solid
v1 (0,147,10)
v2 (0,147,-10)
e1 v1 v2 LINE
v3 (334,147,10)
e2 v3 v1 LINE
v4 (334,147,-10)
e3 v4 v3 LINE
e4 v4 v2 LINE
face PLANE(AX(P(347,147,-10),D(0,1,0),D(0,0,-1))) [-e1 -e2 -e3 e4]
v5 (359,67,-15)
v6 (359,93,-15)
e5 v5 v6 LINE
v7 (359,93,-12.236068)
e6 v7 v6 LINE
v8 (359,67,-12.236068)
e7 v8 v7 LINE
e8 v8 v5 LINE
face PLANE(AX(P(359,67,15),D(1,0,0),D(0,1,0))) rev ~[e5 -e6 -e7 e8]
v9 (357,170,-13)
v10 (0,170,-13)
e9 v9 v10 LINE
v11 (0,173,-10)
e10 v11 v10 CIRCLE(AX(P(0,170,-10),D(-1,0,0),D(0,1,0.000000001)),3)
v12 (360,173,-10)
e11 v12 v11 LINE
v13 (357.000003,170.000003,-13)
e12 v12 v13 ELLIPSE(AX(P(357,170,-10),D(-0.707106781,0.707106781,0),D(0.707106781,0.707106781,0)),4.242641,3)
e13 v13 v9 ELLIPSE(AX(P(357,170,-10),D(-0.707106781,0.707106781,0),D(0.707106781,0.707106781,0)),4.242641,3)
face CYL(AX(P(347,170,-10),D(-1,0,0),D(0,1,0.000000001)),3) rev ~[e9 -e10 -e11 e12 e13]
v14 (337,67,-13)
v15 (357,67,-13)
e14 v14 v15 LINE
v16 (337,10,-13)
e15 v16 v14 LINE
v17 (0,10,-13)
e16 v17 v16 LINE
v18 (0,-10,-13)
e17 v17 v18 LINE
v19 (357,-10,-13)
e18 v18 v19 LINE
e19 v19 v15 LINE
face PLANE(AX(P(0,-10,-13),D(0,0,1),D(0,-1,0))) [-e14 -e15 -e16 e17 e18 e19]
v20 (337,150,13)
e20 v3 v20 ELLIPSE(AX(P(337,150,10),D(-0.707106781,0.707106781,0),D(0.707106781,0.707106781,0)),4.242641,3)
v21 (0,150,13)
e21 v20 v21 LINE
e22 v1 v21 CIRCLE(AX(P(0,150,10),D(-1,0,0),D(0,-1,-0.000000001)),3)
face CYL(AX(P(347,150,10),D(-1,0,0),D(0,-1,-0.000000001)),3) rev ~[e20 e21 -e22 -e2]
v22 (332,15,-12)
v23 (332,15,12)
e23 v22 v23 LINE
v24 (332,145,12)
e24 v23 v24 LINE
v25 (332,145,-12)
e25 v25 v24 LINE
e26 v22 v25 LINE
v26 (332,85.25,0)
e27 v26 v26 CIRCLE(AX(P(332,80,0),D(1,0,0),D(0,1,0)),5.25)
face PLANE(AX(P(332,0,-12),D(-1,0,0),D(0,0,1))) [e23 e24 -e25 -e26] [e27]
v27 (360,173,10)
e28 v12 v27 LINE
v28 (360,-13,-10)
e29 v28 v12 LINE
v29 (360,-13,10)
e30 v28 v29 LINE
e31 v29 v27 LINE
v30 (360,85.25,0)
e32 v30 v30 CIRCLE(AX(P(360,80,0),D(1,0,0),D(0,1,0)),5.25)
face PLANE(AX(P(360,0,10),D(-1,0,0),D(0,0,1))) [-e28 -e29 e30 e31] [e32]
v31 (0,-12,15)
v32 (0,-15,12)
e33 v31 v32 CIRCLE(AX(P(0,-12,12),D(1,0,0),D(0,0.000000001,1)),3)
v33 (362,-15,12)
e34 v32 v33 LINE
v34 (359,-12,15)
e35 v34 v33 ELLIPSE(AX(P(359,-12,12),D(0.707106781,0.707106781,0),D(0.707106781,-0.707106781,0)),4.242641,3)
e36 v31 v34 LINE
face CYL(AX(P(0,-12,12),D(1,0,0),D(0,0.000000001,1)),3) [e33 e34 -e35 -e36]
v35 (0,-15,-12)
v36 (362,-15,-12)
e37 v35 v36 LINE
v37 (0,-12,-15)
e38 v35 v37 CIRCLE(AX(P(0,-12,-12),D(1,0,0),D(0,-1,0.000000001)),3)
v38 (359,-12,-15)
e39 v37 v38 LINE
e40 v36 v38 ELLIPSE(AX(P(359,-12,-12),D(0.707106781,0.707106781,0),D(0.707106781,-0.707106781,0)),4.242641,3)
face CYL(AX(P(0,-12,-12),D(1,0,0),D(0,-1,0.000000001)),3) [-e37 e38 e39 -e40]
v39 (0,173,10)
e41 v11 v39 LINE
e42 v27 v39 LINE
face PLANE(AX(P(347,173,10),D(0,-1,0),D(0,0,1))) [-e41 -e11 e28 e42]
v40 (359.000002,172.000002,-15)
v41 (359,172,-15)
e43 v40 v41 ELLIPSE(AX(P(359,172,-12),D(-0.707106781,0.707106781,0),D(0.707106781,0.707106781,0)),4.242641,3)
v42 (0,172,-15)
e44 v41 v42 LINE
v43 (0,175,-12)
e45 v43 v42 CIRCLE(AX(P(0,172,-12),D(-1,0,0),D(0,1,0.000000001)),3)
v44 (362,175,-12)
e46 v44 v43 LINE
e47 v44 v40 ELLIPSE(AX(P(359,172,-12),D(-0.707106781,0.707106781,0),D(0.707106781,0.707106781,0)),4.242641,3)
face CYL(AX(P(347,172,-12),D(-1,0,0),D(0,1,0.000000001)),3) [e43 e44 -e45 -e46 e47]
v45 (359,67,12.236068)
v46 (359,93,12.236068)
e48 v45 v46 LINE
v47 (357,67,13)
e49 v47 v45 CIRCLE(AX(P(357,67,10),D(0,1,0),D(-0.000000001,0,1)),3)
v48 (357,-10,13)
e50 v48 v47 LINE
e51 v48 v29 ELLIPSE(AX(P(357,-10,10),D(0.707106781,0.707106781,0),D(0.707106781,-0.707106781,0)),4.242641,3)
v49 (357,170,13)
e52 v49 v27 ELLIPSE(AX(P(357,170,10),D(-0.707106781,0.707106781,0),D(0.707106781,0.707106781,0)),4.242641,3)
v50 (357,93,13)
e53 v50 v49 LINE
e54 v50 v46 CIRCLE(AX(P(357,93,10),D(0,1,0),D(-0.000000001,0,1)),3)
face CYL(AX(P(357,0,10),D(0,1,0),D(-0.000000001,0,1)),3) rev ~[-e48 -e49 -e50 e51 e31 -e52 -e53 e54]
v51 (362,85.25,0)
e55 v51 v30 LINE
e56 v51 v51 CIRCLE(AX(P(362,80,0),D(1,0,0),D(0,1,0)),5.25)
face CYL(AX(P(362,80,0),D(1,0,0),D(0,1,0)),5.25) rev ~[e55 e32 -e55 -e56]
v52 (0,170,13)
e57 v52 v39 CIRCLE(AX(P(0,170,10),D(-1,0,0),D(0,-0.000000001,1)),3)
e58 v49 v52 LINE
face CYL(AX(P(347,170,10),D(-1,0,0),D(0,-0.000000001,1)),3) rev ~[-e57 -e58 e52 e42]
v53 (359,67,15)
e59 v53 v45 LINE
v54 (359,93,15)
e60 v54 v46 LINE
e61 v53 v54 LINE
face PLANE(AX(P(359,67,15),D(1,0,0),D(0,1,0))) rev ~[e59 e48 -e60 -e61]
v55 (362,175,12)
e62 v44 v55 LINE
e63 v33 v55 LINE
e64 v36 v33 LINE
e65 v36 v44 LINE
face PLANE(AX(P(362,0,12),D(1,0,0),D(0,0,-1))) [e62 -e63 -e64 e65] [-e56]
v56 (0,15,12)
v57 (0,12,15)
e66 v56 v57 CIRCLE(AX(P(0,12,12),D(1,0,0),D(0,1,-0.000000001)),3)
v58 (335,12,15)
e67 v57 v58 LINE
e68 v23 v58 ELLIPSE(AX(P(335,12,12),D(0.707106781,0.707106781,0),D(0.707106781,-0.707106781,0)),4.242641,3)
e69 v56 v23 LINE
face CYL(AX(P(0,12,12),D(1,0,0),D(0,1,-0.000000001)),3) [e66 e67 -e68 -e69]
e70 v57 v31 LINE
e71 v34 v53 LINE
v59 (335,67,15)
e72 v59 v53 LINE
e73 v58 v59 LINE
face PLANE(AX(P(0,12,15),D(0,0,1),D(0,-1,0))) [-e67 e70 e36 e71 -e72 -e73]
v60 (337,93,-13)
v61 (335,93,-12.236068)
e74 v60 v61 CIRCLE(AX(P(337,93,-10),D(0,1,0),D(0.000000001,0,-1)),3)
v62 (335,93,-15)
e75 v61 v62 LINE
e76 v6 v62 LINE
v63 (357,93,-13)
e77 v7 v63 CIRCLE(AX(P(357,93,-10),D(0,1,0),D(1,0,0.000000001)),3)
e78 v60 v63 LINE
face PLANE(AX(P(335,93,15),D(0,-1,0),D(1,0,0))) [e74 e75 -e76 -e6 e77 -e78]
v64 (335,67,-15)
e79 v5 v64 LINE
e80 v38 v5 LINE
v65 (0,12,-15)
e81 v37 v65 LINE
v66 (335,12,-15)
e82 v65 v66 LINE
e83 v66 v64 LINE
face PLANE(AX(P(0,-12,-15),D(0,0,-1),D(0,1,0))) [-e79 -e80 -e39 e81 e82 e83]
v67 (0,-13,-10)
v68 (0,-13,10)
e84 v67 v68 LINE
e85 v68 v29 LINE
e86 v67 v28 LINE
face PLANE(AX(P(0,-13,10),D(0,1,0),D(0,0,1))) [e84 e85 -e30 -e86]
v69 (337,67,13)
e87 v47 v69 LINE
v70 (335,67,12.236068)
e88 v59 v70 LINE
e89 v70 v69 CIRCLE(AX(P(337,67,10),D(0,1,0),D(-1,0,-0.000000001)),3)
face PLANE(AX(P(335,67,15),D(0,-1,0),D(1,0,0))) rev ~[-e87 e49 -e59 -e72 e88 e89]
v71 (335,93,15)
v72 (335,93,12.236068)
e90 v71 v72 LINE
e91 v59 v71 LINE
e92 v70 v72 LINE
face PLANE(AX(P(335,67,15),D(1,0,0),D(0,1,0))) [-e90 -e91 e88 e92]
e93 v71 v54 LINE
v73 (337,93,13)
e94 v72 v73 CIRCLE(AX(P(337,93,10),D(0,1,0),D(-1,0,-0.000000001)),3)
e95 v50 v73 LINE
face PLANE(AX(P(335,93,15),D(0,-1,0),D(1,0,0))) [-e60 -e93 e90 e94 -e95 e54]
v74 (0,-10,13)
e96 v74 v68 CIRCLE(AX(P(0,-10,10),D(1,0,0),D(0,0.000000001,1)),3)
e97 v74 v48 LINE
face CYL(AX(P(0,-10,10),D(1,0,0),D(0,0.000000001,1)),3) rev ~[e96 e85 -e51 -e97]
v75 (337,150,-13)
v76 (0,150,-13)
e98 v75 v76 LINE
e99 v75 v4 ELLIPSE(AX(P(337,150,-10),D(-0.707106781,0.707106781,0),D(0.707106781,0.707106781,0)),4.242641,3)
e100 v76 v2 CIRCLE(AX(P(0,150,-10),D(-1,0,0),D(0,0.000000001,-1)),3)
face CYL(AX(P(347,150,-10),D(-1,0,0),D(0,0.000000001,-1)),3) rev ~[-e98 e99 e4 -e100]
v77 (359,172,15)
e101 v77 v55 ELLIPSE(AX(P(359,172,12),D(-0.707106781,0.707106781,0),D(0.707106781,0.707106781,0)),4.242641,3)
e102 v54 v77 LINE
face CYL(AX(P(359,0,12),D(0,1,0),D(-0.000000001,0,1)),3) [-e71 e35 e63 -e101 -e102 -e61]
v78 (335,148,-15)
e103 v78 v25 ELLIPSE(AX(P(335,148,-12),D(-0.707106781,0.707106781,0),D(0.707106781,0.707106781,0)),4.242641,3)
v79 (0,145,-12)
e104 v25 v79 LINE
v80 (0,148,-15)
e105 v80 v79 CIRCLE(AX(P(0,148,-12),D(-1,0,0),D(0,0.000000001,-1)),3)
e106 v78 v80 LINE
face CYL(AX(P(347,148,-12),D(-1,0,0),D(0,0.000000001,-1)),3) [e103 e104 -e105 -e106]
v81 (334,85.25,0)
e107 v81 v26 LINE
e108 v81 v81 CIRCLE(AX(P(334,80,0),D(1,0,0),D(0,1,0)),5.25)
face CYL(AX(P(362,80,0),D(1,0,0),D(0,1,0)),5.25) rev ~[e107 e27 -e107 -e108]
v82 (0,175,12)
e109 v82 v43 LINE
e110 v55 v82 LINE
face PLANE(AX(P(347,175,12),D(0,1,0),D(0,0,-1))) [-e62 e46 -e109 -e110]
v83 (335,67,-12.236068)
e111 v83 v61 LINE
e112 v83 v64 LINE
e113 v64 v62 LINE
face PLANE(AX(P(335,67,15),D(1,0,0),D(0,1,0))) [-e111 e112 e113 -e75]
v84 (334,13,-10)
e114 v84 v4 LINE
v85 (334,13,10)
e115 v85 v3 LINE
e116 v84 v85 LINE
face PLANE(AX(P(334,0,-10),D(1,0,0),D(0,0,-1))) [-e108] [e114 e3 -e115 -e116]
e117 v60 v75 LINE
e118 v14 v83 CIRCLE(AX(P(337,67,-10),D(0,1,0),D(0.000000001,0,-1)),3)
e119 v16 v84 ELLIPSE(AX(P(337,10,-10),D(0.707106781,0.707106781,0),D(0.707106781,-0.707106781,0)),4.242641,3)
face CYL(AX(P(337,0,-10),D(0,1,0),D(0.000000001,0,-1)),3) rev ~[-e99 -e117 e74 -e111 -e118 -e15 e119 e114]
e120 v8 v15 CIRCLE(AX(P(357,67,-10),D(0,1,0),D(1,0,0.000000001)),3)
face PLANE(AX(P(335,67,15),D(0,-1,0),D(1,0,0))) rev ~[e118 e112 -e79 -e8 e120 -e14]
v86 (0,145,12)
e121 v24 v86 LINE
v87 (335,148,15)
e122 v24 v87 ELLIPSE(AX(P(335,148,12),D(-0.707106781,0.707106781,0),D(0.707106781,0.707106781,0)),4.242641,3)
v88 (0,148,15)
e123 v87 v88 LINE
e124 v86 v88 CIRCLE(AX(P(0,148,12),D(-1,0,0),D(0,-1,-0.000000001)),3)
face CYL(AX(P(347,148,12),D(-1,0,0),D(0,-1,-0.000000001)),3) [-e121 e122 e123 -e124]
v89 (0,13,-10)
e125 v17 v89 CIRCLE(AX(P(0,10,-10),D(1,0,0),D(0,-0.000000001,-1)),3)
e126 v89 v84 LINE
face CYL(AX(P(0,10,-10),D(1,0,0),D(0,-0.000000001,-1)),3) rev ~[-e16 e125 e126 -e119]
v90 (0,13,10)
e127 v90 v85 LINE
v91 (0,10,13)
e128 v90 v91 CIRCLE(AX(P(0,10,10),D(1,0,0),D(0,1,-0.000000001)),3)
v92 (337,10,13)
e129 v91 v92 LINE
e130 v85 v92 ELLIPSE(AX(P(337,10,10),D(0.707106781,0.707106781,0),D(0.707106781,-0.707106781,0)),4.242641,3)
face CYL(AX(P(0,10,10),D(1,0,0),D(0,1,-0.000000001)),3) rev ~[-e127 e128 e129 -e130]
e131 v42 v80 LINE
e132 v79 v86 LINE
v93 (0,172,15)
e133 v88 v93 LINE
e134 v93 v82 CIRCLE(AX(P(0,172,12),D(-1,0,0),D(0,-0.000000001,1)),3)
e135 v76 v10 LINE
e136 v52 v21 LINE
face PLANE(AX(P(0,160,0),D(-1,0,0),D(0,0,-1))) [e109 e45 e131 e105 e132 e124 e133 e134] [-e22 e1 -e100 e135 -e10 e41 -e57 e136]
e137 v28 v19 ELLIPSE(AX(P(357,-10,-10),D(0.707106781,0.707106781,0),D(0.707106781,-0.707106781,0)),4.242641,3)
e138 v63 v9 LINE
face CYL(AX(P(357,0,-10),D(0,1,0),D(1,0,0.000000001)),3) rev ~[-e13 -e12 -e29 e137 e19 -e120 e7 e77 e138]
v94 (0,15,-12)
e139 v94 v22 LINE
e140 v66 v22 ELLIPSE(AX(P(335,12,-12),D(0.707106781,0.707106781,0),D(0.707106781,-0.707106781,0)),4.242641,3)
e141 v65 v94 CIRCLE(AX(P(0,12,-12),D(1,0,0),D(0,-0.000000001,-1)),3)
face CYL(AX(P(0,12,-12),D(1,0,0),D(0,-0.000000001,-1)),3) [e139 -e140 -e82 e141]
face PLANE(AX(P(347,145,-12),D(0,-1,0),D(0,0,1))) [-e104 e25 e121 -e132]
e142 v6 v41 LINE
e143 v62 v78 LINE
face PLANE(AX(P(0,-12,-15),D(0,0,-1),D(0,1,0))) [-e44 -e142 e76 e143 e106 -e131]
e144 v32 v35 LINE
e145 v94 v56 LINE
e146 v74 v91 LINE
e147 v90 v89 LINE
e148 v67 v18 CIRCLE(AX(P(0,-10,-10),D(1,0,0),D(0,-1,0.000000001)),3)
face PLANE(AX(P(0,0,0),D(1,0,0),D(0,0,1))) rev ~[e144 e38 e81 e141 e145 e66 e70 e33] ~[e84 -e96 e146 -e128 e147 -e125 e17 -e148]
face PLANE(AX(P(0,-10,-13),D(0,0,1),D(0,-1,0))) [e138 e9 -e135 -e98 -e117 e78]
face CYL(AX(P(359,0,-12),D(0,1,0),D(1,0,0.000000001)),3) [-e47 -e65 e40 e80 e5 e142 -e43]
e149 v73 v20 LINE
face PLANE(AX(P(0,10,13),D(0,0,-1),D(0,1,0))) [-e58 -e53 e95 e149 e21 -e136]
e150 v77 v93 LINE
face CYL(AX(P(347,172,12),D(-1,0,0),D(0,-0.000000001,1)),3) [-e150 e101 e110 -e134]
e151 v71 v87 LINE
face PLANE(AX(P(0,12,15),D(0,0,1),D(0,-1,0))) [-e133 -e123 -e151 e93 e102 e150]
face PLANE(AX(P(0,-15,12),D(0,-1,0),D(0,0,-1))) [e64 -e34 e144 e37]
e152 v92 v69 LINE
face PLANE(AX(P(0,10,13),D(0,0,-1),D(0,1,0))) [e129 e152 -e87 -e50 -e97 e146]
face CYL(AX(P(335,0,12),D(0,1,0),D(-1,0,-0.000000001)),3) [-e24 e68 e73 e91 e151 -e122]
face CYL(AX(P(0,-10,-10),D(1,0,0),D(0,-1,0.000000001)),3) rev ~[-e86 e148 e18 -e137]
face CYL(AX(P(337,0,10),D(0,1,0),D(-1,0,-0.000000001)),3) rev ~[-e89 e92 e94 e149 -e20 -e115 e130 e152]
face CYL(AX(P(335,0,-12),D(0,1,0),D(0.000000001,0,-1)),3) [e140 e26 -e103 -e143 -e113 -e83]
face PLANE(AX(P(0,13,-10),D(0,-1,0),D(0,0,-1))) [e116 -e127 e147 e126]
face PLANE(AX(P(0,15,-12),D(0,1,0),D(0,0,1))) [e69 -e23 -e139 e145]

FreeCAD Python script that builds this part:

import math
import FreeCAD as App
import Part
import Sketcher


def add_polygon(sketch, points):
    """Adds a closed chain of lines whose ends are joined by coincident constraints."""
    first, n = sketch.GeometryCount, len(points)
    for a, b in zip(points, points[1:] + points[:1]):
        sketch.addGeometry(Part.LineSegment(App.Vector(*a, 0), App.Vector(*b, 0)), False)
    for i in range(n):
        sketch.addConstraint(Sketcher.Constraint("Coincident", first + i, 2, first + (i + 1) % n, 1))

doc = App.newDocument("Part")
body = doc.addObject("PartDesign::Body", "Body")

sketch1 = doc.addObject("Sketcher::SketchObject", "Sketch")
body.addObject(sketch1)
sketch1.AttachmentSupport = (doc.YZ_Plane, [""])
sketch1.MapMode = "FlatFace"
sketch1.addGeometry(Part.LineSegment(App.Vector(-15, 12, 0), App.Vector(-15, -12, 0)), False)
sketch1.addGeometry(Part.ArcOfCircle(Part.Circle(App.Vector(-12, -12, 0), App.Vector(0, 0, 1), 3), math.radians(180), math.radians(270)), False)
sketch1.addGeometry(Part.LineSegment(App.Vector(-12, -15, 0), App.Vector(12, -15, 0)), False)
sketch1.addGeometry(Part.ArcOfCircle(Part.Circle(App.Vector(12, -12, 0), App.Vector(0, 0, 1), 3), math.radians(-90), math.radians(0)), False)
sketch1.addGeometry(Part.LineSegment(App.Vector(15, -12, 0), App.Vector(15, 12, 0)), False)
sketch1.addGeometry(Part.ArcOfCircle(Part.Circle(App.Vector(12, 12, 0), App.Vector(0, 0, 1), 3), math.radians(0), math.radians(90)), False)
sketch1.addGeometry(Part.LineSegment(App.Vector(12, 15, 0), App.Vector(-12, 15, 0)), False)
sketch1.addGeometry(Part.ArcOfCircle(Part.Circle(App.Vector(-12, 12, 0), App.Vector(0, 0, 1), 3), math.radians(90), math.radians(180)), False)
sketch1.addGeometry(Part.LineSegment(App.Vector(-13, -10, 0), App.Vector(-13, 10, 0)), False)
sketch1.addGeometry(Part.ArcOfCircle(Part.Circle(App.Vector(-10, 10, 0), App.Vector(0, 0, 1), 3), math.radians(90), math.radians(180)), False)
sketch1.addGeometry(Part.LineSegment(App.Vector(-10, 13, 0), App.Vector(10, 13, 0)), False)
sketch1.addGeometry(Part.ArcOfCircle(Part.Circle(App.Vector(10, 10, 0), App.Vector(0, 0, 1), 3), math.radians(0), math.radians(90)), False)
sketch1.addGeometry(Part.LineSegment(App.Vector(13, 10, 0), App.Vector(13, -10, 0)), False)
sketch1.addGeometry(Part.ArcOfCircle(Part.Circle(App.Vector(10, -10, 0), App.Vector(0, 0, 1), 3), math.radians(-90), math.radians(0)), False)
sketch1.addGeometry(Part.LineSegment(App.Vector(10, -13, 0), App.Vector(-10, -13, 0)), False)
sketch1.addGeometry(Part.ArcOfCircle(Part.Circle(App.Vector(-10, -10, 0), App.Vector(0, 0, 1), 3), math.radians(180), math.radians(270)), False)
sketch1.addConstraint(Sketcher.Constraint("Tangent", 0, 2, 1, 1))
sketch1.addConstraint(Sketcher.Constraint("Tangent", 1, 2, 2, 1))
sketch1.addConstraint(Sketcher.Constraint("Tangent", 2, 2, 3, 1))
sketch1.addConstraint(Sketcher.Constraint("Tangent", 3, 2, 4, 1))
sketch1.addConstraint(Sketcher.Constraint("Tangent", 4, 2, 5, 1))
sketch1.addConstraint(Sketcher.Constraint("Tangent", 5, 2, 6, 1))
sketch1.addConstraint(Sketcher.Constraint("Tangent", 6, 2, 7, 1))
sketch1.addConstraint(Sketcher.Constraint("Tangent", 7, 2, 0, 1))
sketch1.addConstraint(Sketcher.Constraint("Tangent", 8, 2, 9, 2))
sketch1.addConstraint(Sketcher.Constraint("Tangent", 9, 1, 10, 1))
sketch1.addConstraint(Sketcher.Constraint("Tangent", 10, 2, 11, 2))
sketch1.addConstraint(Sketcher.Constraint("Tangent", 11, 1, 12, 1))
sketch1.addConstraint(Sketcher.Constraint("Tangent", 12, 2, 13, 2))
sketch1.addConstraint(Sketcher.Constraint("Tangent", 13, 1, 14, 1))
sketch1.addConstraint(Sketcher.Constraint("Tangent", 14, 2, 15, 2))
sketch1.addConstraint(Sketcher.Constraint("Tangent", 15, 1, 8, 1))
sketch1.addConstraint(Sketcher.Constraint("Vertical", 0))
sketch1.addConstraint(Sketcher.Constraint("Horizontal", 2))
sketch1.addConstraint(Sketcher.Constraint("Vertical", 4))
sketch1.addConstraint(Sketcher.Constraint("Horizontal", 6))
sketch1.addConstraint(Sketcher.Constraint("Vertical", 8))
sketch1.addConstraint(Sketcher.Constraint("Horizontal", 10))
sketch1.addConstraint(Sketcher.Constraint("Vertical", 12))
sketch1.addConstraint(Sketcher.Constraint("Horizontal", 14))
sketch1.addConstraint(Sketcher.Constraint("Equal", 1, 3))
sketch1.addConstraint(Sketcher.Constraint("Equal", 3, 5))
sketch1.addConstraint(Sketcher.Constraint("Equal", 5, 7))
sketch1.addConstraint(Sketcher.Constraint("Equal", 7, 9))
sketch1.addConstraint(Sketcher.Constraint("Equal", 9, 11))
sketch1.addConstraint(Sketcher.Constraint("Equal", 11, 13))
sketch1.addConstraint(Sketcher.Constraint("Equal", 13, 15))
sketch1.addConstraint(Sketcher.Constraint("Symmetric", 1, 3, 5, 3, -1, 1))
sketch1.addConstraint(Sketcher.Constraint("Symmetric", 9, 3, 13, 3, -1, 1))
sketch1.addConstraint(Sketcher.Constraint("Equal", 6, 0))
sketch1.addConstraint(Sketcher.Constraint("Equal", 14, 8))
sketch1.addConstraint(Sketcher.Constraint("Radius", 1, 3.0))
sketch1.addConstraint(Sketcher.Constraint("DistanceX", 2, 1, 2, 2, 24.0))
sketch1.addConstraint(Sketcher.Constraint("DistanceX", 10, 1, 10, 2, 20.0))

sketch2 = doc.addObject("Sketcher::SketchObject", "Sketch001")
body.addObject(sketch2)
sketch2.AttachmentSupport = (doc.XY_Plane, [""])
sketch2.MapMode = "FlatFace"
sketch2.addGeometry(Part.LineSegment(App.Vector(0, 0, 0), App.Vector(347, 0, 0)), False)
sketch2.addGeometry(Part.LineSegment(App.Vector(347, 0, 0), App.Vector(347, 160, 0)), False)
sketch2.addGeometry(Part.LineSegment(App.Vector(347, 160, 0), App.Vector(0, 160, 0)), False)
sketch2.addConstraint(Sketcher.Constraint("Coincident", 0, 2, 1, 1))
sketch2.addConstraint(Sketcher.Constraint("Coincident", 1, 2, 2, 1))
sketch2.addConstraint(Sketcher.Constraint("Horizontal", 0))
sketch2.addConstraint(Sketcher.Constraint("Vertical", 1))
sketch2.addConstraint(Sketcher.Constraint("Horizontal", 2))
sketch2.addConstraint(Sketcher.Constraint("Coincident", 0, 1, -1, 1))
sketch2.addConstraint(Sketcher.Constraint("PointOnObject", 2, 2, -2))
sketch2.addConstraint(Sketcher.Constraint("DistanceX", 0, 1, 0, 2, 347.0))
sketch2.addConstraint(Sketcher.Constraint("DistanceY", 1, 1, 1, 2, 160.0))
doc.recompute()

additivepipe = doc.addObject("PartDesign::AdditivePipe", "AdditivePipe")
body.addObject(additivepipe)
additivepipe.Profile = sketch1
additivepipe.Spine = (sketch2, ["Edge1", "Edge2", "Edge3"])
additivepipe.Transition = "Right corner"

sketch3 = doc.addObject("Sketcher::SketchObject", "Sketch002")
body.addObject(sketch3)
sketch3.AttachmentSupport = (doc.YZ_Plane, [""])
sketch3.MapMode = "FlatFace"
sketch3.AttachmentOffset = App.Placement(App.Vector(0, 0, 362), App.Rotation())
sketch3.addGeometry(Part.Circle(App.Vector(80, 0, 0), App.Vector(0, 0, 1), 5.25), False)
sketch3.addConstraint(Sketcher.Constraint("PointOnObject", 0, 3, -1))
sketch3.addConstraint(Sketcher.Constraint("Diameter", 0, 10.5))
sketch3.addConstraint(Sketcher.Constraint("DistanceX", -1, 1, 0, 3, 80.0))
pocket1 = doc.addObject("PartDesign::Pocket", "Pocket")
body.addObject(pocket1)
pocket1.Profile = sketch3
pocket1.Length = 46

sketch4 = doc.addObject("Sketcher::SketchObject", "Sketch003")
body.addObject(sketch4)
sketch4.AttachmentSupport = (doc.XY_Plane, [""])
sketch4.MapMode = "FlatFace"
sketch4.AttachmentOffset = App.Placement(App.Vector(0, 0, 15), App.Rotation())
add_polygon(sketch4, [(335, 93), (335, 67), (359, 67), (359, 93)])
sketch4.addConstraint(Sketcher.Constraint("Vertical", 0))
sketch4.addConstraint(Sketcher.Constraint("Horizontal", 1))
sketch4.addConstraint(Sketcher.Constraint("Vertical", 2))
sketch4.addConstraint(Sketcher.Constraint("Horizontal", 3))
sketch4.addConstraint(Sketcher.Constraint("DistanceX", 1, 1, 1, 2, 24.0))
sketch4.addConstraint(Sketcher.Constraint("DistanceY", 0, 2, 0, 1, 26.0))
sketch4.addConstraint(Sketcher.Constraint("DistanceX", -1, 1, 0, 2, 335.0))
sketch4.addConstraint(Sketcher.Constraint("DistanceY", -1, 1, 0, 2, 67.0))
pocket2 = doc.addObject("PartDesign::Pocket", "Pocket001")
body.addObject(pocket2)
pocket2.Profile = sketch4
pocket2.Length = 46

doc.recompute()
